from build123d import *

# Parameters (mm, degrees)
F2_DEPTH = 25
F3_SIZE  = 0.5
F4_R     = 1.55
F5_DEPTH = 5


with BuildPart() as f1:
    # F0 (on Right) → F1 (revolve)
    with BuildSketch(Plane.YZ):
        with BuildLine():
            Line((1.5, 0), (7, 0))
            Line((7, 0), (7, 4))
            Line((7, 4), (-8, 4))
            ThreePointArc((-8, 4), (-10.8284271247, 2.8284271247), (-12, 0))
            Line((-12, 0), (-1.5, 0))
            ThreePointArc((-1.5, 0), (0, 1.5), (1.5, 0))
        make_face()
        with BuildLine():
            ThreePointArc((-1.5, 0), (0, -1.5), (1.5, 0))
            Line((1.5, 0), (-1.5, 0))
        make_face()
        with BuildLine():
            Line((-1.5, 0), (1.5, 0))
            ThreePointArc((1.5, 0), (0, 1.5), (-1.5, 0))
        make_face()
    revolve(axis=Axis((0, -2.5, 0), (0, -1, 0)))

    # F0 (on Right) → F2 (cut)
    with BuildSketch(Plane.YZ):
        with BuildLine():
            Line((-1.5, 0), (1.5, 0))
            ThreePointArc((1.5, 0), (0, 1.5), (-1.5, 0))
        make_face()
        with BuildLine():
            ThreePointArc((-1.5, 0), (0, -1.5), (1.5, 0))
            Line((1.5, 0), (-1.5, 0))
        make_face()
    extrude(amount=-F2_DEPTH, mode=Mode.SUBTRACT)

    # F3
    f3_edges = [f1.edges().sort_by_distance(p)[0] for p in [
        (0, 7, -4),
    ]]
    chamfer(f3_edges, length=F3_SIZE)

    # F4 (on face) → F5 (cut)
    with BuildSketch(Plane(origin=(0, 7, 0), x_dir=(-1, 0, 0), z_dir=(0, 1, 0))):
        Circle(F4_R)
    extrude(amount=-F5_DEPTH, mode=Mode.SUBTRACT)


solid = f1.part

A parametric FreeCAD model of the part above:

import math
import FreeCAD as App
import Part
import Sketcher
Q = App.Units.Quantity


def edges_at(feature, points):
    """Names of the edges that pass closest to the given points."""
    edges = feature.Shape.Edges
    near = lambda p: min(range(len(edges)), key=lambda i: edges[i].distToShape(Part.Vertex(*p))[0])
    return sorted({f"Edge{near(p) + 1}" for p in points})

doc = App.newDocument("Part")
body = doc.addObject("PartDesign::Body", "Body")

# Sketch on YZ plane
sketch1 = doc.addObject("Sketcher::SketchObject", "Sketch")
body.addObject(sketch1)
sketch1.AttachmentSupport = (doc.YZ_Plane, [""])
sketch1.MapMode = "FlatFace"
sketch1.addGeometry([
    Part.LineSegment(App.Vector(1.5, 0, 0), App.Vector(7, 0, 0)),  # 0
    Part.LineSegment(App.Vector(7, 0, 0), App.Vector(7, 4, 0)),  # 1
    Part.LineSegment(App.Vector(7, 4, 0), App.Vector(-8, 4, 0)),  # 2
    Part.ArcOfCircle(Part.Circle(App.Vector(-8, 0, 0), App.Vector(0, 0, 1), 4), math.radians(90), math.radians(180)),  # 3
    Part.LineSegment(App.Vector(-12, 0, 0), App.Vector(-1.5, 0, 0)),  # 4
    Part.ArcOfCircle(Part.Circle(App.Vector(0, 0, 0), App.Vector(0, 0, 1), 1.5), math.radians(180), math.radians(360)),  # 5
], False)
sketch1.addConstraint([
    Sketcher.Constraint("Coincident", 0, 2, 1, 1),
    Sketcher.Constraint("Coincident", 1, 2, 2, 1),
    Sketcher.Constraint("Tangent", 2, 2, 3, 1),
    Sketcher.Constraint("Coincident", 3, 2, 4, 1),
    Sketcher.Constraint("Coincident", 4, 2, 5, 1),
    Sketcher.Constraint("Coincident", 5, 2, 0, 1),
    Sketcher.Constraint("Horizontal", 0),
    Sketcher.Constraint("Vertical", 1),
    Sketcher.Constraint("Horizontal", 2),
    Sketcher.Constraint("Horizontal", 4),
    Sketcher.Constraint("Coincident", 5, 3, -1, 1),
    Sketcher.Constraint("PointOnObject", 3, 3, -1),
    Sketcher.Constraint("PointOnObject", 0, 2, -1),
    Sketcher.Constraint("PointOnObject", 3, 2, -1),
    Sketcher.Constraint("Radius", 3, Q("4 mm")),
    Sketcher.Constraint("Radius", 5, Q("1.5 mm")),
    Sketcher.Constraint("DistanceX", 2, 2, 2, 1, Q("15 mm")),
    Sketcher.Constraint("DistanceX", 0, 1, 0, 2, Q("5.5 mm")),
])
revolution = doc.addObject("PartDesign::Revolution", "Revolution")
body.addObject(revolution)
revolution.Profile = sketch1
revolution.ReferenceAxis = (sketch1, ["H_Axis"])
revolution.Angle = 360

# Sketch on YZ plane
sketch2 = doc.addObject("Sketcher::SketchObject", "Sketch001")
body.addObject(sketch2)
sketch2.AttachmentSupport = (doc.YZ_Plane, [""])
sketch2.MapMode = "FlatFace"
sketch2.addGeometry(Part.Circle(App.Vector(0, 0, 0), App.Vector(0, 0, 1), 1.5), False)
sketch2.addConstraint([
    Sketcher.Constraint("Coincident", 0, 3, -1, 1),
    Sketcher.Constraint("Diameter", 0, Q("3 mm")),
])
pocket1 = doc.addObject("PartDesign::Pocket", "Pocket")
body.addObject(pocket1)
pocket1.Profile = sketch2
pocket1.Length = 25
doc.recompute()

chamfer = doc.addObject("PartDesign::Chamfer", "Chamfer")
body.addObject(chamfer)
chamfer.Base = (pocket1, edges_at(pocket1, [(0, 7, -4)]))
chamfer.Size = 0.5

# Sketch on XZ plane
sketch3 = doc.addObject("Sketcher::SketchObject", "Sketch002")
body.addObject(sketch3)
sketch3.AttachmentSupport = (doc.XZ_Plane, [""])
sketch3.MapMode = "FlatFace"
sketch3.AttachmentOffset = App.Placement(App.Vector(0, 0, -7), App.Rotation())
sketch3.addGeometry(Part.Circle(App.Vector(0, 0, 0), App.Vector(0, 0, 1), 1.6), False)
sketch3.addConstraint([
    Sketcher.Constraint("Coincident", 0, 3, -1, 1),
    Sketcher.Constraint("Diameter", 0, Q("3.1 mm")),
])
pocket2 = doc.addObject("PartDesign::Pocket", "Pocket001")
body.addObject(pocket2)
pocket2.Profile = sketch3
pocket2.Length = 5
pocket2.Reversed = True

doc.recompute()
